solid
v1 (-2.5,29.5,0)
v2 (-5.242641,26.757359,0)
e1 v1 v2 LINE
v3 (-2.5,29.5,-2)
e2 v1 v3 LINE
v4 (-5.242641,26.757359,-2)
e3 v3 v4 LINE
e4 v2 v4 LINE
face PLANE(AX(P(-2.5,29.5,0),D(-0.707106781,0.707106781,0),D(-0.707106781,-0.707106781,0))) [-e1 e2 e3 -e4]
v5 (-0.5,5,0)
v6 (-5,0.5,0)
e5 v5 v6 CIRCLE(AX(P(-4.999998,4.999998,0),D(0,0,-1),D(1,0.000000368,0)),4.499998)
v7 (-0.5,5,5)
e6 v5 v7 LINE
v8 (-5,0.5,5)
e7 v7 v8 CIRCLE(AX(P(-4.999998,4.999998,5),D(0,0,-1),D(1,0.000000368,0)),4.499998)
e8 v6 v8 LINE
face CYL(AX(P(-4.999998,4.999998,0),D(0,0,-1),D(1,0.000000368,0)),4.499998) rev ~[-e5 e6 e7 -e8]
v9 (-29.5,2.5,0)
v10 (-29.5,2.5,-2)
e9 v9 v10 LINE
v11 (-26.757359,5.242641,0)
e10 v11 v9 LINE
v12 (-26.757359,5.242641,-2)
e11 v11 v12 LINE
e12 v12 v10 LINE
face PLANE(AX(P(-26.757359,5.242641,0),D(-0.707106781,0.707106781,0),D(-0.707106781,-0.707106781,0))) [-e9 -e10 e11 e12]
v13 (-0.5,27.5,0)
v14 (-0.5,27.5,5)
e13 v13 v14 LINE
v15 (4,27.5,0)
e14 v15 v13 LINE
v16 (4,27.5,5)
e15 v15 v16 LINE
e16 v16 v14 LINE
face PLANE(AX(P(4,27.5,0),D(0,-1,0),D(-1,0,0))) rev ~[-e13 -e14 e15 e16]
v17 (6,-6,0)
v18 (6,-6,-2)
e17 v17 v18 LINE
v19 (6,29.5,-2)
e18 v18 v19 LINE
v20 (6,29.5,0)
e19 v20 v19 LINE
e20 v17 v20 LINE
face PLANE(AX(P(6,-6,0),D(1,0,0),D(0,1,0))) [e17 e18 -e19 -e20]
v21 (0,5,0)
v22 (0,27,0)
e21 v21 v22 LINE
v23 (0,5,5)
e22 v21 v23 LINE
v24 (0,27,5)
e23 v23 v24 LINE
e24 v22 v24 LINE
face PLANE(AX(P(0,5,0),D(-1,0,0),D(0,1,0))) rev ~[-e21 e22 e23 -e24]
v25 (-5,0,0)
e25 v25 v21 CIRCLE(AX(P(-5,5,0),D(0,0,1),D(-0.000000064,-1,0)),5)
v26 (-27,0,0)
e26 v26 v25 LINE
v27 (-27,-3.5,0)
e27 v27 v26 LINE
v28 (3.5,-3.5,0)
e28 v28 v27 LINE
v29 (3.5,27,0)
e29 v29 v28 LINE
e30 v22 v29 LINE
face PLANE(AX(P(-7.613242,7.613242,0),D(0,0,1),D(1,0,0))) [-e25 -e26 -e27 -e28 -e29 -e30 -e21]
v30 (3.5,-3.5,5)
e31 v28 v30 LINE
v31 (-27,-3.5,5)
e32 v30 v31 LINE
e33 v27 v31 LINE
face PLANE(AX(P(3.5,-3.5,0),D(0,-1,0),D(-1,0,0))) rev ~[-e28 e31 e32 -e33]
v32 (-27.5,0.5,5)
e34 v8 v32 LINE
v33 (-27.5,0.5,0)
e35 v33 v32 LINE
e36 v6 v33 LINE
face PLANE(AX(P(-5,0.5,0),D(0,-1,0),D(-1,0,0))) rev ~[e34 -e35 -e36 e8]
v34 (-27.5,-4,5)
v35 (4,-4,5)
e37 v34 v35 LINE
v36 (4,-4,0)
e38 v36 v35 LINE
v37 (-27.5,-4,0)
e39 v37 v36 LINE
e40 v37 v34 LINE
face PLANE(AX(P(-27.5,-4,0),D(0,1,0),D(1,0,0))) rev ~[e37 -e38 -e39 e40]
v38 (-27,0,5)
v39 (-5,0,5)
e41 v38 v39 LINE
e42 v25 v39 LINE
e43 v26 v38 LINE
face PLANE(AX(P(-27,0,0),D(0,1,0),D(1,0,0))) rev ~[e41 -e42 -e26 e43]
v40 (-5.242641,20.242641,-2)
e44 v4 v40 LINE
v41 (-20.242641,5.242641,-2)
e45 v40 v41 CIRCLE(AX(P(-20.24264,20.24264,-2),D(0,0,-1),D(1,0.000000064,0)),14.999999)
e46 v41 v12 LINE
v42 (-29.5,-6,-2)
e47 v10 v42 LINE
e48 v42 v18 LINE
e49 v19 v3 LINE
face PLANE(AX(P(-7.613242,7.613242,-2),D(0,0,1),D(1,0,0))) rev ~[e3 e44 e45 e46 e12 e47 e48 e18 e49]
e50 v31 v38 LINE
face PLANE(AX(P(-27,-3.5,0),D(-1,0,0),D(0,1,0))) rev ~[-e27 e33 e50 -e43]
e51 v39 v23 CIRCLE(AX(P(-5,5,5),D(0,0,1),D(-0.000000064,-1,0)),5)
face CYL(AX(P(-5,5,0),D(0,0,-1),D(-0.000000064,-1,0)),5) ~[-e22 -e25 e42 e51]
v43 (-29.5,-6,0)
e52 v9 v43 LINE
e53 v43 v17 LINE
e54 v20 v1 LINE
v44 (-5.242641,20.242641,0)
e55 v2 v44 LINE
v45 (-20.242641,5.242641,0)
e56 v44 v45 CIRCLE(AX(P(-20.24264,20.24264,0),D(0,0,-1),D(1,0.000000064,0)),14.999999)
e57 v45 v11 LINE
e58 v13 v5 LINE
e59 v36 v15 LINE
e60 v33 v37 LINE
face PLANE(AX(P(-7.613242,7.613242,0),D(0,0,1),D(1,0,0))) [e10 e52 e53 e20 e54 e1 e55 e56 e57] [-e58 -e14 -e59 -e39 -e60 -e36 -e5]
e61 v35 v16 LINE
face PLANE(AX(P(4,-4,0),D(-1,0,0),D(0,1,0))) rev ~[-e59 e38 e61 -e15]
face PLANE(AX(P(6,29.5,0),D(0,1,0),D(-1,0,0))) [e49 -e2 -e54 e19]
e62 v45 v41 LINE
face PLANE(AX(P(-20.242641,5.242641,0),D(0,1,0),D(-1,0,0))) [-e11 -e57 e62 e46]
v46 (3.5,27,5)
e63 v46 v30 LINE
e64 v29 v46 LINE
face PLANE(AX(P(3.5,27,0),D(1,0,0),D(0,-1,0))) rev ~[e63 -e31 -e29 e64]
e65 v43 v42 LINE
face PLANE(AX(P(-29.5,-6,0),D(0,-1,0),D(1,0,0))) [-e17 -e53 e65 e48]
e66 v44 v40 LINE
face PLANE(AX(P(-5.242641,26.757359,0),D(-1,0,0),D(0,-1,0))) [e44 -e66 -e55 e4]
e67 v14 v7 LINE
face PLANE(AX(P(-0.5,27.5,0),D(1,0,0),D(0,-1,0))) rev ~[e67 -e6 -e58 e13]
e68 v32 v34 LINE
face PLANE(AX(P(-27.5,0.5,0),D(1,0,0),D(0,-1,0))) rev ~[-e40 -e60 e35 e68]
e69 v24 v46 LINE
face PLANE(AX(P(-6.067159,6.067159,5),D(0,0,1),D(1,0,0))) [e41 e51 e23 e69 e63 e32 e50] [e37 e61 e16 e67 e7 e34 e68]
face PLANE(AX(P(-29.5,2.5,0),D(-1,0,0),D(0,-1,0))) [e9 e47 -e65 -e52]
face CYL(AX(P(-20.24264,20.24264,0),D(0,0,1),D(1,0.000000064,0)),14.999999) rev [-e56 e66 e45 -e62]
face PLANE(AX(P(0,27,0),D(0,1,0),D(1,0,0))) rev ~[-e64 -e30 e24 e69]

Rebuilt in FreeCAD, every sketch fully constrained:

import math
import FreeCAD as App
import Part
import Sketcher
from FreeCAD import Vector

doc = App.newDocument("Part")
body = doc.addObject("PartDesign::Body", "Body")

# Sketch on XY plane
sketch1 = body.newObject("Sketcher::SketchObject", "Sketch")
sketch1.AttachmentSupport = (doc.getObject("XY_Plane"), [""])
sketch1.MapMode = "FlatFace"
sketch1.addGeometry([
    Part.LineSegment(Vector(4, -4, 0), Vector(4, 27.5, 0)),  # 0
    Part.LineSegment(Vector(4, 27.5, 0), Vector(-0.5, 27.5, 0)),  # 1
    Part.LineSegment(Vector(-0.5, 27.5, 0), Vector(-0.5, 5, 0)),  # 2
    Part.ArcOfCircle(Part.Circle(Vector(-5, 5, 0), Vector(0, 0, 1), 4.5), math.radians(-90), math.radians(0)),  # 3
    Part.LineSegment(Vector(-5, 0.5, 0), Vector(-27.5, 0.5, 0)),  # 4
    Part.LineSegment(Vector(-27.5, 0.5, 0), Vector(-27.5, -4, 0)),  # 5
    Part.LineSegment(Vector(-27.5, -4, 0), Vector(4, -4, 0)),  # 6
    Part.LineSegment(Vector(-27, -3.5, 0), Vector(-27, 0, 0)),  # 7
    Part.LineSegment(Vector(-27, 0, 0), Vector(-5, 0, 0)),  # 8
    Part.ArcOfCircle(Part.Circle(Vector(-5, 5, 0), Vector(0, 0, 1), 5), math.radians(-90), math.radians(0)),  # 9
    Part.LineSegment(Vector(0, 5, 0), Vector(0, 27, 0)),  # 10
    Part.LineSegment(Vector(0, 27, 0), Vector(3.5, 27, 0)),  # 11
    Part.LineSegment(Vector(3.5, 27, 0), Vector(3.5, -3.5, 0)),  # 12
    Part.LineSegment(Vector(3.5, -3.5, 0), Vector(-27, -3.5, 0)),  # 13
], False)
sketch1.addConstraint([
    Sketcher.Constraint("Coincident", 0, 2, 1, 1),
    Sketcher.Constraint("Coincident", 1, 2, 2, 1),
    Sketcher.Constraint("Tangent", 2, 2, 3, 2),
    Sketcher.Constraint("Tangent", 3, 1, 4, 1),
    Sketcher.Constraint("Coincident", 4, 2, 5, 1),
    Sketcher.Constraint("Coincident", 5, 2, 6, 1),
    Sketcher.Constraint("Coincident", 6, 2, 0, 1),
    Sketcher.Constraint("Coincident", 7, 2, 8, 1),
    Sketcher.Constraint("Tangent", 8, 2, 9, 1),
    Sketcher.Constraint("Tangent", 9, 2, 10, 1),
    Sketcher.Constraint("Coincident", 10, 2, 11, 1),
    Sketcher.Constraint("Coincident", 11, 2, 12, 1),
    Sketcher.Constraint("Coincident", 12, 2, 13, 1),
    Sketcher.Constraint("Coincident", 13, 2, 7, 1),
    Sketcher.Constraint("Vertical", 0),
    Sketcher.Constraint("Horizontal", 1),
    Sketcher.Constraint("Vertical", 2),
    Sketcher.Constraint("Horizontal", 4),
    Sketcher.Constraint("Vertical", 5),
    Sketcher.Constraint("Horizontal", 6),
    Sketcher.Constraint("Vertical", 7),
    Sketcher.Constraint("Horizontal", 8),
    Sketcher.Constraint("Vertical", 10),
    Sketcher.Constraint("Horizontal", 11),
    Sketcher.Constraint("Vertical", 12),
    Sketcher.Constraint("Horizontal", 13),
    Sketcher.Constraint("Coincident", 9, 3, 3, 3),
    Sketcher.Constraint("PointOnObject", 7, 2, -1),
    Sketcher.Constraint("PointOnObject", 9, 2, -2),
    Sketcher.Constraint("Equal", 6, 0),
    Sketcher.Constraint("Equal", 4, 2),
    Sketcher.Constraint("Equal", 11, 7),
    Sketcher.Constraint("Equal", 8, 10),
    Sketcher.Constraint("Radius", 9, 5.0),
    Sketcher.Constraint("Radius", 3, 4.499998),
    Sketcher.Constraint("DistanceX", 8, 1, 8, 2, 22.0),
    Sketcher.Constraint("DistanceX", 1, 2, 1, 1, 4.5),
    Sketcher.Constraint("DistanceX", 4, 2, 4, 1, 22.5),
    Sketcher.Constraint("DistanceX", 11, 1, 11, 2, 3.5),
])
pad1 = body.newObject("PartDesign::Pad", "Pad")
pad1.Profile = sketch1
pad1.Length = 5

# Sketch on XY plane
sketch2 = body.newObject("Sketcher::SketchObject", "Sketch001")
sketch2.AttachmentSupport = (doc.getObject("XY_Plane"), [""])
sketch2.MapMode = "FlatFace"
sketch2.addGeometry([
    Part.LineSegment(Vector(-29.5, -6, 0), Vector(6, -6, 0)),  # 0
    Part.LineSegment(Vector(6, -6, 0), Vector(6, 29.5, 0)),  # 1
    Part.LineSegment(Vector(6, 29.5, 0), Vector(-2.5, 29.5, 0)),  # 2
    Part.LineSegment(Vector(-2.5, 29.5, 0), Vector(-5.2, 26.8, 0)),  # 3
    Part.LineSegment(Vector(-5.2, 26.8, 0), Vector(-5.2, 20.2, 0)),  # 4
    Part.ArcOfCircle(Part.Circle(Vector(-20.2, 20.2, 0), Vector(0, 0, 1), 15), math.radians(-90), math.radians(0)),  # 5
    Part.LineSegment(Vector(-20.2, 5.2, 0), Vector(-26.8, 5.2, 0)),  # 6
    Part.LineSegment(Vector(-26.8, 5.2, 0), Vector(-29.5, 2.5, 0)),  # 7
    Part.LineSegment(Vector(-29.5, 2.5, 0), Vector(-29.5, -6, 0)),  # 8
], False)
sketch2.addConstraint([
    Sketcher.Constraint("Coincident", 0, 2, 1, 1),
    Sketcher.Constraint("Coincident", 1, 2, 2, 1),
    Sketcher.Constraint("Coincident", 2, 2, 3, 1),
    Sketcher.Constraint("Coincident", 3, 2, 4, 1),
    Sketcher.Constraint("Tangent", 4, 2, 5, 2),
    Sketcher.Constraint("Tangent", 5, 1, 6, 1),
    Sketcher.Constraint("Coincident", 6, 2, 7, 1),
    Sketcher.Constraint("Coincident", 7, 2, 8, 1),
    Sketcher.Constraint("Coincident", 8, 2, 0, 1),
    Sketcher.Constraint("Horizontal", 0),
    Sketcher.Constraint("Vertical", 1),
    Sketcher.Constraint("Horizontal", 2),
    Sketcher.Constraint("Vertical", 4),
    Sketcher.Constraint("Horizontal", 6),
    Sketcher.Constraint("Vertical", 8),
    Sketcher.Constraint("Parallel", 3, 7),
    Sketcher.Constraint("Equal", 0, 1),
    Sketcher.Constraint("Equal", 6, 4),
    Sketcher.Constraint("Equal", 2, 8),
    Sketcher.Constraint("Equal", 3, 7),
    Sketcher.Constraint("Radius", 5, 14.999999),
    Sketcher.Constraint("DistanceX", 0, 1, 0, 2, 35.5),
    Sketcher.Constraint("DistanceX", 2, 2, 2, 1, 8.5),
    Sketcher.Constraint("DistanceX", -1, 1, 0, 2, 6.0),
    Sketcher.Constraint("DistanceY", 0, 2, -1, 1, 6.0),
    Sketcher.Constraint("DistanceX", 6, 2, 6, 1, 6.514718),
])
pad2 = body.newObject("PartDesign::Pad", "Pad001")
pad2.Profile = sketch2
pad2.Length = 2
pad2.Reversed = True

doc.recompute()
